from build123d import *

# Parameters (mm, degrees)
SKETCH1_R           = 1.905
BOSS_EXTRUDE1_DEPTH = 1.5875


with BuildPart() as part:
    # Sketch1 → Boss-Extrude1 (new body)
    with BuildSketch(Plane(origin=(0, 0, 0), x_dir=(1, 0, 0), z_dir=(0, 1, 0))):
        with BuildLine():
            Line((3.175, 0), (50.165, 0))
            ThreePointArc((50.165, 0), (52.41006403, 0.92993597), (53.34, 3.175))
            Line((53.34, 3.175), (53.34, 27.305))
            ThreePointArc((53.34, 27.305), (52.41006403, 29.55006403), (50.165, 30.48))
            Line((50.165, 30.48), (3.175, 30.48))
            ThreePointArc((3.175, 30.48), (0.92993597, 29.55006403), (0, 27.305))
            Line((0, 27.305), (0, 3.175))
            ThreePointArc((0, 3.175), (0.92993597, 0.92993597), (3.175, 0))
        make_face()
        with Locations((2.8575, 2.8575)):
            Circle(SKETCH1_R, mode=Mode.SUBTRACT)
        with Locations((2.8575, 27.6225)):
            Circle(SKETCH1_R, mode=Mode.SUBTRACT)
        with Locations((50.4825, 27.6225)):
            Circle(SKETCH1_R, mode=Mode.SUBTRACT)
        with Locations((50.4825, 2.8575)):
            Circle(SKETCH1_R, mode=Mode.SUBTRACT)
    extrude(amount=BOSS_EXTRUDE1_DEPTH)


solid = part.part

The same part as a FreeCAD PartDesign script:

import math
import FreeCAD as App
import Part
import Sketcher
from FreeCAD import Vector
Q = App.Units.Quantity

doc = App.newDocument("Part")
body = doc.addObject("PartDesign::Body", "Body")

# Sketch on XZ plane
sketch1 = body.newObject("Sketcher::SketchObject", "Sketch")
sketch1.AttachmentSupport = (doc.getObject("XZ_Plane"), [""])
sketch1.MapMode = "FlatFace"
sketch1.addGeometry([
    Part.LineSegment(Vector(3.2, 0, 0), Vector(50.2, 0, 0)),  # 0
    Part.ArcOfCircle(Part.Circle(Vector(50.2, -3.2, 0), Vector(0, 0, 1), 3.2), math.radians(0), math.radians(90)),  # 1
    Part.LineSegment(Vector(53.3, -3.2, 0), Vector(53.3, -27.3, 0)),  # 2
    Part.ArcOfCircle(Part.Circle(Vector(50.2, -27.3, 0), Vector(0, 0, 1), 3.2), math.radians(-90), math.radians(0)),  # 3
    Part.LineSegment(Vector(50.2, -30.5, 0), Vector(3.2, -30.5, 0)),  # 4
    Part.ArcOfCircle(Part.Circle(Vector(3.2, -27.3, 0), Vector(0, 0, 1), 3.2), math.radians(-180), math.radians(-90)),  # 5
    Part.LineSegment(Vector(0, -27.3, 0), Vector(0, -3.2, 0)),  # 6
    Part.ArcOfCircle(Part.Circle(Vector(3.2, -3.2, 0), Vector(0, 0, 1), 3.2), math.radians(90), math.radians(180)),  # 7
    Part.Circle(Vector(2.9, -2.9, 0), Vector(0, 0, 1), 1.9),  # 8
    Part.Circle(Vector(50.5, -2.9, 0), Vector(0, 0, 1), 1.9),  # 9
    Part.Circle(Vector(2.9, -27.6, 0), Vector(0, 0, 1), 1.9),  # 10
    Part.Circle(Vector(50.5, -27.6, 0), Vector(0, 0, 1), 1.9),  # 11
], False)
sketch1.addConstraint([
    Sketcher.Constraint("Tangent", 0, 2, 1, 2),
    Sketcher.Constraint("Tangent", 1, 1, 2, 1),
    Sketcher.Constraint("Tangent", 2, 2, 3, 2),
    Sketcher.Constraint("Tangent", 3, 1, 4, 1),
    Sketcher.Constraint("Tangent", 4, 2, 5, 2),
    Sketcher.Constraint("Tangent", 5, 1, 6, 1),
    Sketcher.Constraint("Tangent", 6, 2, 7, 2),
    Sketcher.Constraint("Tangent", 7, 1, 0, 1),
    Sketcher.Constraint("Horizontal", 0),
    Sketcher.Constraint("Vertical", 2),
    Sketcher.Constraint("Horizontal", 4),
    Sketcher.Constraint("Vertical", 6),
    Sketcher.Constraint("Equal", 1, 3),
    Sketcher.Constraint("Equal", 3, 5),
    Sketcher.Constraint("Equal", 5, 7),
    Sketcher.Constraint("Equal", 8, 9),
    Sketcher.Constraint("Equal", 9, 10),
    Sketcher.Constraint("Equal", 10, 11),
    Sketcher.Constraint("PointOnObject", 0, 2, -1),
    Sketcher.Constraint("PointOnObject", 5, 1, -2),
    Sketcher.Constraint("Horizontal", 8, 3, 9, 3),
    Sketcher.Constraint("Horizontal", 10, 3, 11, 3),
    Sketcher.Constraint("Vertical", 8, 3, 10, 3),
    Sketcher.Constraint("Vertical", 9, 3, 11, 3),
    Sketcher.Constraint("Diameter", 8, Q("0.15 in")),
    Sketcher.Constraint("Radius", 1, Q("0.125 in")),
    Sketcher.Constraint("DistanceX", 0, 1, 0, 2, Q("1.85 in")),
    Sketcher.Constraint("DistanceY", 2, 2, 2, 1, Q("0.95 in")),
    Sketcher.Constraint("DistanceX", 8, 3, 9, 3, Q("1.875 in")),
    Sketcher.Constraint("DistanceY", 10, 3, 8, 3, Q("0.975 in")),
    Sketcher.Constraint("DistanceX", -1, 1, 8, 3, Q("0.1125 in")),
    Sketcher.Constraint("DistanceY", 8, 3, -1, 1, Q("0.1125 in")),
])
pad1 = body.newObject("PartDesign::Pad", "Pad")
pad1.Profile = sketch1
pad1.Length = Q("0.0625 in")
pad1.Reversed = True

doc.recompute()
